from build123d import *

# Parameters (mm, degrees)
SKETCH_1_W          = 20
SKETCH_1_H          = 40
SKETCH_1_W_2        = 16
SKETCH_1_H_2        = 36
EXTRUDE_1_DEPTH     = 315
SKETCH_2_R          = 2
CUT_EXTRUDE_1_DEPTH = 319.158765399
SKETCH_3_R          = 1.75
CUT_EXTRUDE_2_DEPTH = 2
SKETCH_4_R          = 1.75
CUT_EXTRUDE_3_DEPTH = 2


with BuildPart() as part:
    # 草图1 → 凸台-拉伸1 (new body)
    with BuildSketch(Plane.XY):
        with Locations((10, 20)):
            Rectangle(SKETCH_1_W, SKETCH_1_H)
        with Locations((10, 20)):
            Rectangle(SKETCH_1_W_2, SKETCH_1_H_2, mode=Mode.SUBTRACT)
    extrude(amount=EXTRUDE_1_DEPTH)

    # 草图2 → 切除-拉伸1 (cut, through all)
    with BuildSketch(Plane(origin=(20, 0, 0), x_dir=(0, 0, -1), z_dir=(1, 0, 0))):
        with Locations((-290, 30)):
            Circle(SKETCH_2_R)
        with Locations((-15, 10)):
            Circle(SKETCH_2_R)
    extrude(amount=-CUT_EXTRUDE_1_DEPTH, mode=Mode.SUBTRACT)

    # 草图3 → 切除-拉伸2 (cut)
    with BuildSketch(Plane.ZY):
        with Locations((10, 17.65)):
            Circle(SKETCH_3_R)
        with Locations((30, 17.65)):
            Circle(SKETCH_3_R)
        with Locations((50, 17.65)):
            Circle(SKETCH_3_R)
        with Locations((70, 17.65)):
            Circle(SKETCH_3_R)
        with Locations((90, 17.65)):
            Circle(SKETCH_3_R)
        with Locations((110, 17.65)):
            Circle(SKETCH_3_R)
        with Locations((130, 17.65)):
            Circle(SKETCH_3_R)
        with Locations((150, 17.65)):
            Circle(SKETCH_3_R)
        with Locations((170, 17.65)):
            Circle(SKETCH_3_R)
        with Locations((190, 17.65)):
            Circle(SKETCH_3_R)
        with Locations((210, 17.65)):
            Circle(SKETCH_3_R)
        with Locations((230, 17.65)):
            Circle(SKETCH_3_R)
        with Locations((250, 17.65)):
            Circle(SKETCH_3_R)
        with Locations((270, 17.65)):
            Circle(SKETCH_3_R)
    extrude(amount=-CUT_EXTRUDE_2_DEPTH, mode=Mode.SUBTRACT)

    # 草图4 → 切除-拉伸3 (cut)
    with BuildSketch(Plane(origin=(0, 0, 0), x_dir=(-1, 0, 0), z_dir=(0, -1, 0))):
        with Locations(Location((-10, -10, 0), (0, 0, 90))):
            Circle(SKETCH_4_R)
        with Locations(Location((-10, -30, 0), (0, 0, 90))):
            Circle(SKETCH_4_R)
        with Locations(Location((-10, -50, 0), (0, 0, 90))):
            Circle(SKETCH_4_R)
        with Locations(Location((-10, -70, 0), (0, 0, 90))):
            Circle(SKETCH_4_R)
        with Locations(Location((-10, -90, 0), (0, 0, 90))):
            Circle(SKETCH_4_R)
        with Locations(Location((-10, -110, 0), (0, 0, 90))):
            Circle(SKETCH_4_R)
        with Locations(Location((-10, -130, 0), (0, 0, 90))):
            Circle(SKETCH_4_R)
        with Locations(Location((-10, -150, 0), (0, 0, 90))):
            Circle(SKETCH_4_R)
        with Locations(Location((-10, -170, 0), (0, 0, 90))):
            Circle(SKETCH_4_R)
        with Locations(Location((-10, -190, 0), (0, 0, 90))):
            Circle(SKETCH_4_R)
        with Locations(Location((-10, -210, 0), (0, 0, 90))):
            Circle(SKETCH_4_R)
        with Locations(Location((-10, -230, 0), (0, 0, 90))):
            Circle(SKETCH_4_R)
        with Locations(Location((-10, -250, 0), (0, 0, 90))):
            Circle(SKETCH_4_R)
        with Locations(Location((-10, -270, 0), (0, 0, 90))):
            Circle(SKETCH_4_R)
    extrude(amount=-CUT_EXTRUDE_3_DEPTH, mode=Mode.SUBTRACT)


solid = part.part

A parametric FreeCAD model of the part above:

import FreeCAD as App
import Part
import Sketcher

V = App.Vector


def add_polygon(sketch, points):
    """Adds a closed chain of lines whose ends are joined by coincident constraints."""
    first, n = sketch.GeometryCount, len(points)
    for a, b in zip(points, points[1:] + points[:1]):
        sketch.addGeometry(Part.LineSegment(App.Vector(*a, 0), App.Vector(*b, 0)), False)
    for i in range(n):
        sketch.addConstraint(Sketcher.Constraint("Coincident", first + i, 2, first + (i + 1) % n, 1))

doc = App.newDocument("Part")
params = doc.addObject("Spreadsheet::Sheet", "Params")
for row, (alias, value) in enumerate([
    ("sketch1_width", "20 mm"),
    ("sketch1_width2", "16 mm"),
    ("sketch1_height", "40 mm"),
    ("sketch1_height2", "36 mm"),
    ("pad1_length", "315 mm"),
    ("sketch2_diameter", "4 mm"),
    ("sketch3_diameter", "3.5 mm"),
    ("pocket2_length", "2 mm"),
    ("sketch4_diameter", "3.5 mm"),
    ("pocket3_length", "2 mm"),
], start=1):
    params.set(f"A{row}", alias)
    params.set(f"B{row}", "=" + value)
    params.setAlias(f"B{row}", alias)

body = doc.addObject("PartDesign::Body", "Body")

sketch1 = body.newObject("Sketcher::SketchObject", "Sketch")
sketch1.AttachmentSupport = (doc.getObject("XY_Plane"), [""])
sketch1.MapMode = "FlatFace"
add_polygon(sketch1, [(0, 40), (0, 0), (20, 0), (20, 40)])
add_polygon(sketch1, [(18, 2), (2, 2), (2, 38), (18, 38)])
sketch1.addConstraint([
    Sketcher.Constraint("Vertical", 0),
    Sketcher.Constraint("Horizontal", 1),
    Sketcher.Constraint("Vertical", 2),
    Sketcher.Constraint("Horizontal", 3),
    Sketcher.Constraint("Horizontal", 4),
    Sketcher.Constraint("Vertical", 5),
    Sketcher.Constraint("Horizontal", 6),
    Sketcher.Constraint("Vertical", 7),
    Sketcher.Constraint("Coincident", 0, 2, -1, 1),
    Sketcher.Constraint("DistanceX", 1, 1, 1, 2, 20.0),
    Sketcher.Constraint("DistanceX", 4, 2, 4, 1, 16.0),
    Sketcher.Constraint("DistanceY", 0, 2, 0, 1, 40.0),
    Sketcher.Constraint("DistanceY", 5, 1, 5, 2, 36.0),
    Sketcher.Constraint("DistanceX", -1, 1, 4, 2, 2.0),
    Sketcher.Constraint("DistanceY", -1, 1, 4, 2, 2.0),
])
sketch1.setExpression("Constraints[17]", "Params.sketch1_width")
sketch1.setExpression("Constraints[18]", "Params.sketch1_width2")
sketch1.setExpression("Constraints[19]", "Params.sketch1_height")
sketch1.setExpression("Constraints[20]", "Params.sketch1_height2")
pad1 = body.newObject("PartDesign::Pad", "Pad")
pad1.Profile = sketch1
pad1.setExpression("Length", "Params.pad1_length")

sketch2 = body.newObject("Sketcher::SketchObject", "Sketch001")
sketch2.AttachmentSupport = (doc.getObject("YZ_Plane"), [""])
sketch2.MapMode = "FlatFace"
sketch2.AttachmentOffset = App.Placement(V(0, 0, 20), App.Rotation())
sketch2.addGeometry([
    Part.Circle(V(30, 290, 0), V(0, 0, 1), 2),
    Part.Circle(V(10, 15, 0), V(0, 0, 1), 2),
], False)
sketch2.addConstraint([
    Sketcher.Constraint("Equal", 0, 1),
    Sketcher.Constraint("Diameter", 0, 4.0),
    Sketcher.Constraint("DistanceX", -1, 1, 0, 3, 30.0),
    Sketcher.Constraint("DistanceY", -1, 1, 0, 3, 290.0),
    Sketcher.Constraint("DistanceX", -1, 1, 1, 3, 10.0),
    Sketcher.Constraint("DistanceY", -1, 1, 1, 3, 15.0),
])
sketch2.setExpression("Constraints[1]", "Params.sketch2_diameter")
pocket1 = body.newObject("PartDesign::Pocket", "Pocket")
pocket1.Profile = sketch2
pocket1.Type = "ThroughAll"

sketch3 = body.newObject("Sketcher::SketchObject", "Sketch002")
sketch3.AttachmentSupport = (doc.getObject("YZ_Plane"), [""])
sketch3.MapMode = "FlatFace"
sketch3.addGeometry([
    Part.Circle(V(17.6, 10, 0), V(0, 0, 1), 1.8),
    Part.Circle(V(17.6, 30, 0), V(0, 0, 1), 1.8),
    Part.Circle(V(17.6, 50, 0), V(0, 0, 1), 1.8),
    Part.Circle(V(17.6, 70, 0), V(0, 0, 1), 1.8),
    Part.Circle(V(17.6, 90, 0), V(0, 0, 1), 1.8),
    Part.Circle(V(17.6, 110, 0), V(0, 0, 1), 1.8),
    Part.Circle(V(17.6, 130, 0), V(0, 0, 1), 1.8),
    Part.Circle(V(17.6, 150, 0), V(0, 0, 1), 1.8),
    Part.Circle(V(17.6, 170, 0), V(0, 0, 1), 1.8),
    Part.Circle(V(17.6, 190, 0), V(0, 0, 1), 1.8),
    Part.Circle(V(17.6, 210, 0), V(0, 0, 1), 1.8),
    Part.Circle(V(17.6, 230, 0), V(0, 0, 1), 1.8),
    Part.Circle(V(17.6, 250, 0), V(0, 0, 1), 1.8),
    Part.Circle(V(17.6, 270, 0), V(0, 0, 1), 1.8),
], False)
sketch3.addConstraint([
    Sketcher.Constraint("Equal", 0, 1),
    Sketcher.Constraint("Equal", 1, 2),
    Sketcher.Constraint("Equal", 2, 3),
    Sketcher.Constraint("Equal", 3, 4),
    Sketcher.Constraint("Equal", 4, 5),
    Sketcher.Constraint("Equal", 5, 6),
    Sketcher.Constraint("Equal", 6, 7),
    Sketcher.Constraint("Equal", 7, 8),
    Sketcher.Constraint("Equal", 8, 9),
    Sketcher.Constraint("Equal", 9, 10),
    Sketcher.Constraint("Equal", 10, 11),
    Sketcher.Constraint("Equal", 11, 12),
    Sketcher.Constraint("Equal", 12, 13),
    Sketcher.Constraint("Vertical", 0, 3, 1, 3),
    Sketcher.Constraint("Vertical", 1, 3, 2, 3),
    Sketcher.Constraint("Vertical", 2, 3, 3, 3),
    Sketcher.Constraint("Vertical", 3, 3, 4, 3),
    Sketcher.Constraint("Vertical", 4, 3, 5, 3),
    Sketcher.Constraint("Vertical", 5, 3, 6, 3),
    Sketcher.Constraint("Vertical", 6, 3, 7, 3),
    Sketcher.Constraint("Vertical", 7, 3, 8, 3),
    Sketcher.Constraint("Vertical", 8, 3, 9, 3),
    Sketcher.Constraint("Vertical", 9, 3, 10, 3),
    Sketcher.Constraint("Vertical", 10, 3, 11, 3),
    Sketcher.Constraint("Vertical", 11, 3, 12, 3),
    Sketcher.Constraint("Vertical", 12, 3, 13, 3),
    Sketcher.Constraint("Diameter", 0, 3.5),
    Sketcher.Constraint("DistanceY", -1, 1, 0, 3, 10.0),
    Sketcher.Constraint("DistanceY", -1, 1, 1, 3, 30.0),
    Sketcher.Constraint("DistanceY", -1, 1, 2, 3, 50.0),
    Sketcher.Constraint("DistanceY", -1, 1, 3, 3, 70.0),
    Sketcher.Constraint("DistanceY", -1, 1, 4, 3, 90.0),
    Sketcher.Constraint("DistanceY", -1, 1, 5, 3, 110.0),
    Sketcher.Constraint("DistanceY", -1, 1, 6, 3, 130.0),
    Sketcher.Constraint("DistanceY", -1, 1, 7, 3, 150.0),
    Sketcher.Constraint("DistanceY", -1, 1, 8, 3, 170.0),
    Sketcher.Constraint("DistanceY", -1, 1, 9, 3, 190.0),
    Sketcher.Constraint("DistanceY", -1, 1, 10, 3, 210.0),
    Sketcher.Constraint("DistanceY", -1, 1, 11, 3, 230.0),
    Sketcher.Constraint("DistanceY", -1, 1, 12, 3, 250.0),
    Sketcher.Constraint("DistanceY", -1, 1, 13, 3, 270.0),
    Sketcher.Constraint("DistanceX", -1, 1, 0, 3, 17.65),
])
sketch3.setExpression("Constraints[26]", "Params.sketch3_diameter")
pocket2 = body.newObject("PartDesign::Pocket", "Pocket001")
pocket2.Profile = sketch3
pocket2.setExpression("Length", "Params.pocket2_length")
pocket2.Reversed = True

sketch4 = body.newObject("Sketcher::SketchObject", "Sketch003")
sketch4.AttachmentSupport = (doc.getObject("XZ_Plane"), [""])
sketch4.MapMode = "FlatFace"
sketch4.addGeometry([
    Part.Circle(V(10, 10, 0), V(0, 0, 1), 1.8),
    Part.Circle(V(10, 30, 0), V(0, 0, 1), 1.8),
    Part.Circle(V(10, 50, 0), V(0, 0, 1), 1.8),
    Part.Circle(V(10, 70, 0), V(0, 0, 1), 1.8),
    Part.Circle(V(10, 90, 0), V(0, 0, 1), 1.8),
    Part.Circle(V(10, 110, 0), V(0, 0, 1), 1.8),
    Part.Circle(V(10, 130, 0), V(0, 0, 1), 1.8),
    Part.Circle(V(10, 150, 0), V(0, 0, 1), 1.8),
    Part.Circle(V(10, 170, 0), V(0, 0, 1), 1.8),
    Part.Circle(V(10, 190, 0), V(0, 0, 1), 1.8),
    Part.Circle(V(10, 210, 0), V(0, 0, 1), 1.8),
    Part.Circle(V(10, 230, 0), V(0, 0, 1), 1.8),
    Part.Circle(V(10, 250, 0), V(0, 0, 1), 1.8),
    Part.Circle(V(10, 270, 0), V(0, 0, 1), 1.8),
], False)
sketch4.addConstraint([
    Sketcher.Constraint("Equal", 0, 1),
    Sketcher.Constraint("Equal", 1, 2),
    Sketcher.Constraint("Equal", 2, 3),
    Sketcher.Constraint("Equal", 3, 4),
    Sketcher.Constraint("Equal", 4, 5),
    Sketcher.Constraint("Equal", 5, 6),
    Sketcher.Constraint("Equal", 6, 7),
    Sketcher.Constraint("Equal", 7, 8),
    Sketcher.Constraint("Equal", 8, 9),
    Sketcher.Constraint("Equal", 9, 10),
    Sketcher.Constraint("Equal", 10, 11),
    Sketcher.Constraint("Equal", 11, 12),
    Sketcher.Constraint("Equal", 12, 13),
    Sketcher.Constraint("Vertical", 0, 3, 1, 3),
    Sketcher.Constraint("Vertical", 1, 3, 2, 3),
    Sketcher.Constraint("Vertical", 2, 3, 3, 3),
    Sketcher.Constraint("Vertical", 3, 3, 4, 3),
    Sketcher.Constraint("Vertical", 4, 3, 5, 3),
    Sketcher.Constraint("Vertical", 5, 3, 6, 3),
    Sketcher.Constraint("Vertical", 6, 3, 7, 3),
    Sketcher.Constraint("Vertical", 7, 3, 8, 3),
    Sketcher.Constraint("Vertical", 8, 3, 9, 3),
    Sketcher.Constraint("Vertical", 9, 3, 10, 3),
    Sketcher.Constraint("Vertical", 10, 3, 11, 3),
    Sketcher.Constraint("Vertical", 11, 3, 12, 3),
    Sketcher.Constraint("Vertical", 12, 3, 13, 3),
    Sketcher.Constraint("Diameter", 0, 3.5),
    Sketcher.Constraint("DistanceX", -1, 1, 0, 3, 10.0),
    Sketcher.Constraint("DistanceY", -1, 1, 0, 3, 10.0),
    Sketcher.Constraint("DistanceY", -1, 1, 1, 3, 30.0),
    Sketcher.Constraint("DistanceY", -1, 1, 2, 3, 50.0),
    Sketcher.Constraint("DistanceY", -1, 1, 3, 3, 70.0),
    Sketcher.Constraint("DistanceY", -1, 1, 4, 3, 90.0),
    Sketcher.Constraint("DistanceY", -1, 1, 5, 3, 110.0),
    Sketcher.Constraint("DistanceY", -1, 1, 6, 3, 130.0),
    Sketcher.Constraint("DistanceY", -1, 1, 7, 3, 150.0),
    Sketcher.Constraint("DistanceY", -1, 1, 8, 3, 170.0),
    Sketcher.Constraint("DistanceY", -1, 1, 9, 3, 190.0),
    Sketcher.Constraint("DistanceY", -1, 1, 10, 3, 210.0),
    Sketcher.Constraint("DistanceY", -1, 1, 11, 3, 230.0),
    Sketcher.Constraint("DistanceY", -1, 1, 12, 3, 250.0),
    Sketcher.Constraint("DistanceY", -1, 1, 13, 3, 270.0),
])
sketch4.setExpression("Constraints[26]", "Params.sketch4_diameter")
pocket3 = body.newObject("PartDesign::Pocket", "Pocket002")
pocket3.Profile = sketch4
pocket3.setExpression("Length", "Params.pocket3_length")

doc.recompute()
